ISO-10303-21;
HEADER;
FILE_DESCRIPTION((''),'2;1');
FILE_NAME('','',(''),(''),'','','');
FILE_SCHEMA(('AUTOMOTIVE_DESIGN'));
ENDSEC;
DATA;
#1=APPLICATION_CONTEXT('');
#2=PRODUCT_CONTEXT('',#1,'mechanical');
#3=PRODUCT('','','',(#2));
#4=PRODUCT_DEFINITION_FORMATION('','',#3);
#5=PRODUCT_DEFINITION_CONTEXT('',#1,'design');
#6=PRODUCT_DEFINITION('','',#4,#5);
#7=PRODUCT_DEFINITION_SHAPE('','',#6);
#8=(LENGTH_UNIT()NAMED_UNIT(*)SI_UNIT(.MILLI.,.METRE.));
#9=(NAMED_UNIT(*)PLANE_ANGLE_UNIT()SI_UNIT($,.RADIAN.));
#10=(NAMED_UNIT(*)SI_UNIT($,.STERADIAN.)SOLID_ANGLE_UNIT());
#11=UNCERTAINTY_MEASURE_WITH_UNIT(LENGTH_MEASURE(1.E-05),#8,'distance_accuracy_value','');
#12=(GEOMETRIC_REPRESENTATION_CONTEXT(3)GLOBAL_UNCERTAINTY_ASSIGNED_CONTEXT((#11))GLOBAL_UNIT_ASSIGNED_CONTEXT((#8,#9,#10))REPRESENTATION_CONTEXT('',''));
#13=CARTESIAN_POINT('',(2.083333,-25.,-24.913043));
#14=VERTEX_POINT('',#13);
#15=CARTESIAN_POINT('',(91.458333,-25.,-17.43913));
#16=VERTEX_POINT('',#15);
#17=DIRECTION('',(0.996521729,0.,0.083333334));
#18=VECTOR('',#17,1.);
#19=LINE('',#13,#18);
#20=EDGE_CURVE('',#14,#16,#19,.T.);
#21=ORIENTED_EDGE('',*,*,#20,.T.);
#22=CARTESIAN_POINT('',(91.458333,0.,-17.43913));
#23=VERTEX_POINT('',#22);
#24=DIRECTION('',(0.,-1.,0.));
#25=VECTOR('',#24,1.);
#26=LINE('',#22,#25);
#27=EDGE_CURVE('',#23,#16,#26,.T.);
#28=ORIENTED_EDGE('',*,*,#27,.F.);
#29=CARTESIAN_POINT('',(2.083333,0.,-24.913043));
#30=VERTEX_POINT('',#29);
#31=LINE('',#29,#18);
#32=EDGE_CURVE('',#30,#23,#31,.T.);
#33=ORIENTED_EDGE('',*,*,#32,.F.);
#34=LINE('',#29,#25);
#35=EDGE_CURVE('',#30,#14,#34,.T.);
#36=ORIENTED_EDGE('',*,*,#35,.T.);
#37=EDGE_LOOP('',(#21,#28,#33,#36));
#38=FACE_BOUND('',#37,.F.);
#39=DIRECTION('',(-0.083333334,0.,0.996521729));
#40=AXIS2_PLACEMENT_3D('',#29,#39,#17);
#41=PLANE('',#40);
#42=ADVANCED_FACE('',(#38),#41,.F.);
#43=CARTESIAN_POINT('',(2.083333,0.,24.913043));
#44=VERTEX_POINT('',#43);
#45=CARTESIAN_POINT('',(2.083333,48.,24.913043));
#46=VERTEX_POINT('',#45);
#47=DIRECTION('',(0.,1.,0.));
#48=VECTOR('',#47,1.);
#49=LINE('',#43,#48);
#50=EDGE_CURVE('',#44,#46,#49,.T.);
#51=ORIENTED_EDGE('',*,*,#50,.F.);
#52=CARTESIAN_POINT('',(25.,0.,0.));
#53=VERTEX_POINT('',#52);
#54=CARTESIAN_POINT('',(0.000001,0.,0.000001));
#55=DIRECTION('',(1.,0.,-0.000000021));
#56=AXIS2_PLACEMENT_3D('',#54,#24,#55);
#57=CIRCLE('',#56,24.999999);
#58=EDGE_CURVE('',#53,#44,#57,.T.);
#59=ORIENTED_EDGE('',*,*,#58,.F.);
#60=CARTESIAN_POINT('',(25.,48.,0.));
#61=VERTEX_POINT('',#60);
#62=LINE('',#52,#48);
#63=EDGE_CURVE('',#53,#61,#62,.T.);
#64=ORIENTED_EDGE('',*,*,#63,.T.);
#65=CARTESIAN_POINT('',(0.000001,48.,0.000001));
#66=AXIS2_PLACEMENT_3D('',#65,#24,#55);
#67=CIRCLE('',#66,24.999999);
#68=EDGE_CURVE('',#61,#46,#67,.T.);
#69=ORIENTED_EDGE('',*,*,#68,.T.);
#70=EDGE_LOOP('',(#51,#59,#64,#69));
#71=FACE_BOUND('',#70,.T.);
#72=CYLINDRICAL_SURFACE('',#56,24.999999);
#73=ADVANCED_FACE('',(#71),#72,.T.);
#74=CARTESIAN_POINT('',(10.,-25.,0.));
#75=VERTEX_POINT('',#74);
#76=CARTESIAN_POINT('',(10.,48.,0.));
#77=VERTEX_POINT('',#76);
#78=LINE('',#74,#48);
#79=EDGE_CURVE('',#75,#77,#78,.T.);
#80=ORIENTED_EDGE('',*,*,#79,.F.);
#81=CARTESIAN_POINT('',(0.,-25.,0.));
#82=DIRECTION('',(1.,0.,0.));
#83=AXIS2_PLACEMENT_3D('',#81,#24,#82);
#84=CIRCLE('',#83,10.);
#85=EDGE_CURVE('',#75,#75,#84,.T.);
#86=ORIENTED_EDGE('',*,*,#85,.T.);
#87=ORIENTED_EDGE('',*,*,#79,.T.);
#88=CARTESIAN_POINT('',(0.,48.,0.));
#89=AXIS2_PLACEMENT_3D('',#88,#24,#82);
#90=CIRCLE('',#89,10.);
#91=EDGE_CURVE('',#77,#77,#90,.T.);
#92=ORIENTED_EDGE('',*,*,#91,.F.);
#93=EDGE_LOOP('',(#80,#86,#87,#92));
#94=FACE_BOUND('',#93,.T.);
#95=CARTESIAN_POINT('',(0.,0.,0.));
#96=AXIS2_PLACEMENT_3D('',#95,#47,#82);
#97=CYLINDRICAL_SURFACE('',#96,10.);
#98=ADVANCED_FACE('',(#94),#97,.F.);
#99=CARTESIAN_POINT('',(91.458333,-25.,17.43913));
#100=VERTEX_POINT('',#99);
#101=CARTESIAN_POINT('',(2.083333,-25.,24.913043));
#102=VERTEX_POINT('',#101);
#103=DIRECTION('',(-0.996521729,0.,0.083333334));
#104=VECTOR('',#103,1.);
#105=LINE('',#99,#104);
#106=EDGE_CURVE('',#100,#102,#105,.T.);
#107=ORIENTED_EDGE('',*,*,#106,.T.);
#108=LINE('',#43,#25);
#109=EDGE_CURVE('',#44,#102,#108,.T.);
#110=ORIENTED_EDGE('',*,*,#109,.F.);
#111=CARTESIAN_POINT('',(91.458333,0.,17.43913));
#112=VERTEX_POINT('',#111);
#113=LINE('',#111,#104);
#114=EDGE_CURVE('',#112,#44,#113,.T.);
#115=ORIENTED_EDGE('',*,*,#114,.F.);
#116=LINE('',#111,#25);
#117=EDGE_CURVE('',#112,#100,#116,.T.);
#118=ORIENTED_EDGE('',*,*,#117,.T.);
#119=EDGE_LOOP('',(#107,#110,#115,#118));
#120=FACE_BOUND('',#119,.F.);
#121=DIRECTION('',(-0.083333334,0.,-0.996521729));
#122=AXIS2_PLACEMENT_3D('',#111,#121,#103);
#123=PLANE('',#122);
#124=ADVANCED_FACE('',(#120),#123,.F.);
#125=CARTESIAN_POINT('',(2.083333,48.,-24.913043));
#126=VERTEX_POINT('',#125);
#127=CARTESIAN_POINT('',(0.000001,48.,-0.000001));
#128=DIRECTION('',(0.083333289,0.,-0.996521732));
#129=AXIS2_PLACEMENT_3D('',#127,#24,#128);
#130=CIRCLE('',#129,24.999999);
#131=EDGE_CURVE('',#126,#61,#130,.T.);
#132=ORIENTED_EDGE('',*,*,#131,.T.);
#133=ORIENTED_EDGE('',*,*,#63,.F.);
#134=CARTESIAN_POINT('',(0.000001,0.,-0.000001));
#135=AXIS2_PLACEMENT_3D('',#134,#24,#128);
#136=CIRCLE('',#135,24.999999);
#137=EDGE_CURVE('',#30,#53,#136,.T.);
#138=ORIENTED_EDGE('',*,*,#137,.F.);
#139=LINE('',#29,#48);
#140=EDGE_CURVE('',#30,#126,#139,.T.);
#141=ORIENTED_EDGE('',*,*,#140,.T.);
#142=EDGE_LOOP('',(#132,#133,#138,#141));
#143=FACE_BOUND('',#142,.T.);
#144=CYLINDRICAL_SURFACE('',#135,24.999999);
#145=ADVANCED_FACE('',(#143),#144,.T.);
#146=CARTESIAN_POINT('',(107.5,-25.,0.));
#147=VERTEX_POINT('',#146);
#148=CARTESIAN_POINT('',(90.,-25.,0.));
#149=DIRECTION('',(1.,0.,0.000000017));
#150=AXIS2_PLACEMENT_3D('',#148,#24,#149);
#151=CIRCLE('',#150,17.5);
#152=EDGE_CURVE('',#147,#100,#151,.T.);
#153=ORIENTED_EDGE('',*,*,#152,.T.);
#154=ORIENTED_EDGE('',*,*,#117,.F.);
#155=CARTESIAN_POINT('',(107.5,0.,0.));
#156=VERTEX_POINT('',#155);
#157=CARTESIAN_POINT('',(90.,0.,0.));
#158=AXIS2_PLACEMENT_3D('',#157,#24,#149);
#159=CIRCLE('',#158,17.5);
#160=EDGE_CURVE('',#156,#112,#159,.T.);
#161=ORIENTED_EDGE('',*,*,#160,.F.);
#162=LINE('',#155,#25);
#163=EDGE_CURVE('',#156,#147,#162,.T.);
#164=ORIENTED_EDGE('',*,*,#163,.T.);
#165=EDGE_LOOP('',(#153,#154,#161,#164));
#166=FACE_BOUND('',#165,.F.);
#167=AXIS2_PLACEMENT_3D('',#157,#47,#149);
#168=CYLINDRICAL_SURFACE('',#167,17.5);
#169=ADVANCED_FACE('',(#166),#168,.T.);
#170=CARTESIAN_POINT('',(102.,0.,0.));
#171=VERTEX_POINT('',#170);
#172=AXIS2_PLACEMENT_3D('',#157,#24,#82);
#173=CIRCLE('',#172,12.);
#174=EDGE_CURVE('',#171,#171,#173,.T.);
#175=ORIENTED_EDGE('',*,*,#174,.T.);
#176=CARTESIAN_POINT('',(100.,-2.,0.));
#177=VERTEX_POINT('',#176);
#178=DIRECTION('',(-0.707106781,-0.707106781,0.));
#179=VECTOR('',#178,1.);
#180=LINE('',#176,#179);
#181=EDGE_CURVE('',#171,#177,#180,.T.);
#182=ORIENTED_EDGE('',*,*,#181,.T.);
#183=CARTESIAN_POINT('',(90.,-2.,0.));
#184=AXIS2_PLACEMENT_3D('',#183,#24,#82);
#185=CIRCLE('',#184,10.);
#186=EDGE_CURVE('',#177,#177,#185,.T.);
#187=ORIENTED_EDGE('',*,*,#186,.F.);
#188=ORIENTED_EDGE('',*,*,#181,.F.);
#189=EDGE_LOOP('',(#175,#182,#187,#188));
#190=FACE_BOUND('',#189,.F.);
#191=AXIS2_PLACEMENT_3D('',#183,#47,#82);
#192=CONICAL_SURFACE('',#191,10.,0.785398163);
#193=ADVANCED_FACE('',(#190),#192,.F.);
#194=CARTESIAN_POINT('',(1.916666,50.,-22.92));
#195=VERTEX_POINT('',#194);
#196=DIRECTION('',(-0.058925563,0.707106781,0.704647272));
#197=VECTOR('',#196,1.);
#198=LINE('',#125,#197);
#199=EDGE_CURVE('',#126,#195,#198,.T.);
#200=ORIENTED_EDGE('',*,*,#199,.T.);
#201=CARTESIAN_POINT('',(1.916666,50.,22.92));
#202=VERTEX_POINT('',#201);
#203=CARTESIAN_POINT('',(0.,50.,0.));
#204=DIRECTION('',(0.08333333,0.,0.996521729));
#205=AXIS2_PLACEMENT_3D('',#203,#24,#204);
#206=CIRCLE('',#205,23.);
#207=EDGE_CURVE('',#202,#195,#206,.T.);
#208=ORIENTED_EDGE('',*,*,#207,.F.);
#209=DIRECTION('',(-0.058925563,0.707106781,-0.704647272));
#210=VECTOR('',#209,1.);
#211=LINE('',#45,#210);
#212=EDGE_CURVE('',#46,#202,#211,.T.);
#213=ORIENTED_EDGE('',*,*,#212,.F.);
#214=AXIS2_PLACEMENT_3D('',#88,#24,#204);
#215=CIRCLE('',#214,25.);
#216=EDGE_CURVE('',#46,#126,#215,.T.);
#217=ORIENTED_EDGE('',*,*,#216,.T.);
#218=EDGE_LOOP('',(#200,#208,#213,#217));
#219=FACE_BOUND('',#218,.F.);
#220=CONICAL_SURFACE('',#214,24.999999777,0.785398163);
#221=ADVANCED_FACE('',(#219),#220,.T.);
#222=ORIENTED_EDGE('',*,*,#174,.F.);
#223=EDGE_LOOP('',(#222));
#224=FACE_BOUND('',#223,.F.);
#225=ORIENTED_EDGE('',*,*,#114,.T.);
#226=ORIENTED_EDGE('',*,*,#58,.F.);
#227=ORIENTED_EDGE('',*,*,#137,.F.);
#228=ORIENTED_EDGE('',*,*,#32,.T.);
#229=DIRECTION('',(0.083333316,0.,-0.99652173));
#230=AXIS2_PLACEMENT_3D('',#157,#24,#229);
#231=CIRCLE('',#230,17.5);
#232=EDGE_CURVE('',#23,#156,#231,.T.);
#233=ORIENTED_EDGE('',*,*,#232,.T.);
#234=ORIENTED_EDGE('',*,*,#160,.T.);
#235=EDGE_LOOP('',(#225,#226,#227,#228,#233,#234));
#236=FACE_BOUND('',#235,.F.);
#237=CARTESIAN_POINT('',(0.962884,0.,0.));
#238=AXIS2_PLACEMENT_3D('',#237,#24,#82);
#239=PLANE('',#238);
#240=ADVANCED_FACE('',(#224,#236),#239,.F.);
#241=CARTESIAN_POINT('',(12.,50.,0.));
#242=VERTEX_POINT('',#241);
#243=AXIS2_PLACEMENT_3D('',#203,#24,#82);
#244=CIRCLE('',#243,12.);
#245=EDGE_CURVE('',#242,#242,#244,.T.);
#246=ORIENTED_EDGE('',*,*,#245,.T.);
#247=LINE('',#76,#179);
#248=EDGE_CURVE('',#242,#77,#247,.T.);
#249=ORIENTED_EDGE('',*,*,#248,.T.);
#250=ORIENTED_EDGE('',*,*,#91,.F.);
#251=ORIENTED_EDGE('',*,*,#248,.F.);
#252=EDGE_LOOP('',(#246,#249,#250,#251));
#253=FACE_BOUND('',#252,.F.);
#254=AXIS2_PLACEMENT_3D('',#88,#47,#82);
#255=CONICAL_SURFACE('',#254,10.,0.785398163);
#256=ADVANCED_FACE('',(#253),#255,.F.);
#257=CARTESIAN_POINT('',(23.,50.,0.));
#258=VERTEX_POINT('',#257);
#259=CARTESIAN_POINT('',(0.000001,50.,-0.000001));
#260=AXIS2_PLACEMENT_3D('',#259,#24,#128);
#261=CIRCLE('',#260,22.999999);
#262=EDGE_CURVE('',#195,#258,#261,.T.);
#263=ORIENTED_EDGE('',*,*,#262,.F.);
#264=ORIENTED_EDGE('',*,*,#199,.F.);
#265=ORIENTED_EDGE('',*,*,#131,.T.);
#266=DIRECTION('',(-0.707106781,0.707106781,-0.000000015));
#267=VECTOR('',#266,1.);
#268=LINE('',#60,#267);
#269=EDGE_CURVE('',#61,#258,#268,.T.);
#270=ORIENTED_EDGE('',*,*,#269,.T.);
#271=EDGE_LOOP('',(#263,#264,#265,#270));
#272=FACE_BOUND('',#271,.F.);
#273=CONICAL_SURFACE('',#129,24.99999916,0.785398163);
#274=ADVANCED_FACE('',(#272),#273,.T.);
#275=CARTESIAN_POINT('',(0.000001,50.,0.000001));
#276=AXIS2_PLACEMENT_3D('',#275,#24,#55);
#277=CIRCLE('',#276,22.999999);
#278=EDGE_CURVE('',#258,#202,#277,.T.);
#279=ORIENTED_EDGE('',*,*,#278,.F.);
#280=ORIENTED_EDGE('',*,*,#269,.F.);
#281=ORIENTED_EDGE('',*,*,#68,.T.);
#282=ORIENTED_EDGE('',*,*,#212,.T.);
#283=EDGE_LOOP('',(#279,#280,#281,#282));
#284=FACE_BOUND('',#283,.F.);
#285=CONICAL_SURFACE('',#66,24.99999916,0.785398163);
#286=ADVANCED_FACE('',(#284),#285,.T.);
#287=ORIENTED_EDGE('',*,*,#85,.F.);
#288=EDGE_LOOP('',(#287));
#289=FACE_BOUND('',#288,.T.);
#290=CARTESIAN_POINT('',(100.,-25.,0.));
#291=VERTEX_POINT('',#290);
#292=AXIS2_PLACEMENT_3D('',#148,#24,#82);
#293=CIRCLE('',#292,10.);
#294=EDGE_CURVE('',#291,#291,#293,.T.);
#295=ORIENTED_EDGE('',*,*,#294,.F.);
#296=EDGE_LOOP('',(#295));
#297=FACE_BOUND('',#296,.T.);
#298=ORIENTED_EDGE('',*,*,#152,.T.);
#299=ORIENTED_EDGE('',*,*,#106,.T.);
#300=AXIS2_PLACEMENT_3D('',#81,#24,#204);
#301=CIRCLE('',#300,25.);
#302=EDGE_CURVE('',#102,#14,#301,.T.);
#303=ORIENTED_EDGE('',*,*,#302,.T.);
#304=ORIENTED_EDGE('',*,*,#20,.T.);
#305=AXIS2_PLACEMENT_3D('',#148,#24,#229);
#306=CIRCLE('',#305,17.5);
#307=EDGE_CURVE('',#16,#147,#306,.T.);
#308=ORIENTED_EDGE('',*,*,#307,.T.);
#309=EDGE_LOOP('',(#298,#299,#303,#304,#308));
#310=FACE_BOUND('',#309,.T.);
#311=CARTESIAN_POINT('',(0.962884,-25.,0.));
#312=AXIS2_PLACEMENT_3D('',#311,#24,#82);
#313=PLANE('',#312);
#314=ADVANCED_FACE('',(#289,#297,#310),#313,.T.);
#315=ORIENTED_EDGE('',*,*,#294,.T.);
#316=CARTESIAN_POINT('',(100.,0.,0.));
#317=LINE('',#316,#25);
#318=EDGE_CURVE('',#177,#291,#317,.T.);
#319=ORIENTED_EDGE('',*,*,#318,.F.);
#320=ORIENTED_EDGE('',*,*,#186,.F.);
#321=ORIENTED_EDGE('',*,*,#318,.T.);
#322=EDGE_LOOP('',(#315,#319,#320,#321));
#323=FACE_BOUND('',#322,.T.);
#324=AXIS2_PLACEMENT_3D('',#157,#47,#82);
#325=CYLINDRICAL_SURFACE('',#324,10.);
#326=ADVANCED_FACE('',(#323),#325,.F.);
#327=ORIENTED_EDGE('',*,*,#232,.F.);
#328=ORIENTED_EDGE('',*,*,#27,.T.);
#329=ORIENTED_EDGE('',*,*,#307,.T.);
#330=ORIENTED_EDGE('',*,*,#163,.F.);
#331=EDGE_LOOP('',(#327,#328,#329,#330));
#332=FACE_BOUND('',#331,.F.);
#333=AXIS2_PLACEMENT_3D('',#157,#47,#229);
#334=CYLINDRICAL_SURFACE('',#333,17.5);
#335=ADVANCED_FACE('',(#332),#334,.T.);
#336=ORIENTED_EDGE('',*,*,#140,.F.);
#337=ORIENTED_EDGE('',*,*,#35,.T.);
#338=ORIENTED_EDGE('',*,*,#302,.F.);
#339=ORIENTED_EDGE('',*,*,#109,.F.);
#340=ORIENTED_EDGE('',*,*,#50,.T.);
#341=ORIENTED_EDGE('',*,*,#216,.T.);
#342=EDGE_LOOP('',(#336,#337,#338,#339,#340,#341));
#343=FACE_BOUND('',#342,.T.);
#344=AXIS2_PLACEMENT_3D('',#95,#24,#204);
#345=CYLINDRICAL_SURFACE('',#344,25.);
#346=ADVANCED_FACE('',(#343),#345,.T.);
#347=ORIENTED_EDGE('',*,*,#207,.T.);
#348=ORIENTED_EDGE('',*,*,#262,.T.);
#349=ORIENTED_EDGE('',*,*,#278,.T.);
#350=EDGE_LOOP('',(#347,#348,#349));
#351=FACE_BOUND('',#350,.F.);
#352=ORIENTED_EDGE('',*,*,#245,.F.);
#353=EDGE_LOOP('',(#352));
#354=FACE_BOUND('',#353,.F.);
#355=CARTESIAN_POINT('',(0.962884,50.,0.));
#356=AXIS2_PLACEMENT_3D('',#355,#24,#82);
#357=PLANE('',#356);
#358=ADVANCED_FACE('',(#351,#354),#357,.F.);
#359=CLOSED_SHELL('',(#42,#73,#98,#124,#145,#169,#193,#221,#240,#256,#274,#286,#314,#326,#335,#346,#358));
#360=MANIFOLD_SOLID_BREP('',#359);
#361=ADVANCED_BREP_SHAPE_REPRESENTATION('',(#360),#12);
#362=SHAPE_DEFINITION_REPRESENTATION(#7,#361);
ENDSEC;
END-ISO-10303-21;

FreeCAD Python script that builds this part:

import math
import FreeCAD as App
import Part
import Sketcher

V = App.Vector


def edges_at(feature, points):
    """Names of the edges that pass closest to the given points."""
    edges = feature.Shape.Edges
    near = lambda p: min(range(len(edges)), key=lambda i: edges[i].distToShape(Part.Vertex(*p))[0])
    return sorted({f"Edge{near(p) + 1}" for p in points})

doc = App.newDocument("Part")
body = doc.addObject("PartDesign::Body", "Body")

# Sketch on XZ plane
sketch1 = body.newObject("Sketcher::SketchObject", "Sketch")
sketch1.AttachmentSupport = (doc.getObject("XZ_Plane"), [""])
sketch1.MapMode = "FlatFace"
sketch1.addGeometry(Part.ArcOfCircle(Part.Circle(V(0, 0, 0), V(0, 0, 1), 25), math.radians(85), math.radians(275)), False)
sketch1.addGeometry(Part.LineSegment(V(2, -25, 0), V(91, -17, 0)), False)
sketch1.addGeometry(Part.ArcOfCircle(Part.Circle(V(90, 0, 0), V(0, 0, 1), 18), math.radians(-85), math.radians(0)), False)
sketch1.addGeometry(Part.ArcOfCircle(Part.Circle(V(90, 0, 0), V(0, 0, 1), 18), math.radians(0), math.radians(85)), False)
sketch1.addGeometry(Part.LineSegment(V(91, 17, 0), V(2, 25, 0)), False)
sketch1.addGeometry(Part.Circle(V(0, 0, 0), V(0, 0, 1), 10), False)
sketch1.addGeometry(Part.Circle(V(90, 0, 0), V(0, 0, 1), 10), False)
sketch1.addConstraint(Sketcher.Constraint("Tangent", 0, 2, 1, 1))
sketch1.addConstraint(Sketcher.Constraint("Tangent", 1, 2, 2, 1))
sketch1.addConstraint(Sketcher.Constraint("Tangent", 2, 2, 3, 1))
sketch1.addConstraint(Sketcher.Constraint("Tangent", 3, 2, 4, 1))
sketch1.addConstraint(Sketcher.Constraint("Tangent", 4, 2, 0, 1))
sketch1.addConstraint(Sketcher.Constraint("Coincident", 0, 3, -1, 1))
sketch1.addConstraint(Sketcher.Constraint("Coincident", 5, 3, -1, 1))
sketch1.addConstraint(Sketcher.Constraint("Coincident", 6, 3, 2, 3))
sketch1.addConstraint(Sketcher.Constraint("Equal", 2, 3))
sketch1.addConstraint(Sketcher.Constraint("Equal", 5, 6))
sketch1.addConstraint(Sketcher.Constraint("PointOnObject", 2, 3, -1))
sketch1.addConstraint(Sketcher.Constraint("PointOnObject", 2, 2, -1))
sketch1.addConstraint(Sketcher.Constraint("Diameter", 5, 20.0))
sketch1.addConstraint(Sketcher.Constraint("Radius", 0, 25.0))
sketch1.addConstraint(Sketcher.Constraint("Radius", 2, 17.5))
sketch1.addConstraint(Sketcher.Constraint("DistanceX", -1, 1, 2, 3, 90.0))
pad1 = body.newObject("PartDesign::Pad", "Pad")
pad1.Profile = sketch1
pad1.Length = 25

# Sketch on XZ plane
sketch2 = body.newObject("Sketcher::SketchObject", "Sketch001")
sketch2.AttachmentSupport = (doc.getObject("XZ_Plane"), [""])
sketch2.MapMode = "FlatFace"
sketch2.addGeometry(Part.ArcOfCircle(Part.Circle(V(0, 0, 0), V(0, 0, 1), 25), math.radians(-85), math.radians(0)), False)
sketch2.addGeometry(Part.ArcOfCircle(Part.Circle(V(0, 0, 0), V(0, 0, 1), 25), math.radians(0), math.radians(85)), False)
sketch2.addGeometry(Part.ArcOfCircle(Part.Circle(V(0, 0, 0), V(0, 0, 1), 25), math.radians(85), math.radians(275)), False)
sketch2.addGeometry(Part.Circle(V(0, 0, 0), V(0, 0, 1), 10), False)
sketch2.addConstraint(Sketcher.Constraint("Tangent", 0, 2, 1, 1))
sketch2.addConstraint(Sketcher.Constraint("Tangent", 1, 2, 2, 1))
sketch2.addConstraint(Sketcher.Constraint("Tangent", 2, 2, 0, 1))
sketch2.addConstraint(Sketcher.Constraint("Coincident", 0, 3, -1, 1))
sketch2.addConstraint(Sketcher.Constraint("Coincident", 3, 3, -1, 1))
sketch2.addConstraint(Sketcher.Constraint("PointOnObject", 0, 2, -1))
sketch2.addConstraint(Sketcher.Constraint("Vertical", 1, 2, 2, 2))
sketch2.addConstraint(Sketcher.Constraint("Diameter", 3, 20.0))
sketch2.addConstraint(Sketcher.Constraint("Radius", 0, 24.999999))
sketch2.addConstraint(Sketcher.Constraint("DistanceX", -1, 1, 1, 2, 2.083333))
pad2 = body.newObject("PartDesign::Pad", "Pad001")
pad2.Profile = sketch2
pad2.Length = 50
pad2.Reversed = True
doc.recompute()

chamfer = body.newObject("PartDesign::Chamfer", "Chamfer")
chamfer.Base = (pad2, edges_at(pad2, [(-10, 50, 0), (-25, 50, 0), (80, 0, 0)]))
chamfer.Size = 2

doc.recompute()
